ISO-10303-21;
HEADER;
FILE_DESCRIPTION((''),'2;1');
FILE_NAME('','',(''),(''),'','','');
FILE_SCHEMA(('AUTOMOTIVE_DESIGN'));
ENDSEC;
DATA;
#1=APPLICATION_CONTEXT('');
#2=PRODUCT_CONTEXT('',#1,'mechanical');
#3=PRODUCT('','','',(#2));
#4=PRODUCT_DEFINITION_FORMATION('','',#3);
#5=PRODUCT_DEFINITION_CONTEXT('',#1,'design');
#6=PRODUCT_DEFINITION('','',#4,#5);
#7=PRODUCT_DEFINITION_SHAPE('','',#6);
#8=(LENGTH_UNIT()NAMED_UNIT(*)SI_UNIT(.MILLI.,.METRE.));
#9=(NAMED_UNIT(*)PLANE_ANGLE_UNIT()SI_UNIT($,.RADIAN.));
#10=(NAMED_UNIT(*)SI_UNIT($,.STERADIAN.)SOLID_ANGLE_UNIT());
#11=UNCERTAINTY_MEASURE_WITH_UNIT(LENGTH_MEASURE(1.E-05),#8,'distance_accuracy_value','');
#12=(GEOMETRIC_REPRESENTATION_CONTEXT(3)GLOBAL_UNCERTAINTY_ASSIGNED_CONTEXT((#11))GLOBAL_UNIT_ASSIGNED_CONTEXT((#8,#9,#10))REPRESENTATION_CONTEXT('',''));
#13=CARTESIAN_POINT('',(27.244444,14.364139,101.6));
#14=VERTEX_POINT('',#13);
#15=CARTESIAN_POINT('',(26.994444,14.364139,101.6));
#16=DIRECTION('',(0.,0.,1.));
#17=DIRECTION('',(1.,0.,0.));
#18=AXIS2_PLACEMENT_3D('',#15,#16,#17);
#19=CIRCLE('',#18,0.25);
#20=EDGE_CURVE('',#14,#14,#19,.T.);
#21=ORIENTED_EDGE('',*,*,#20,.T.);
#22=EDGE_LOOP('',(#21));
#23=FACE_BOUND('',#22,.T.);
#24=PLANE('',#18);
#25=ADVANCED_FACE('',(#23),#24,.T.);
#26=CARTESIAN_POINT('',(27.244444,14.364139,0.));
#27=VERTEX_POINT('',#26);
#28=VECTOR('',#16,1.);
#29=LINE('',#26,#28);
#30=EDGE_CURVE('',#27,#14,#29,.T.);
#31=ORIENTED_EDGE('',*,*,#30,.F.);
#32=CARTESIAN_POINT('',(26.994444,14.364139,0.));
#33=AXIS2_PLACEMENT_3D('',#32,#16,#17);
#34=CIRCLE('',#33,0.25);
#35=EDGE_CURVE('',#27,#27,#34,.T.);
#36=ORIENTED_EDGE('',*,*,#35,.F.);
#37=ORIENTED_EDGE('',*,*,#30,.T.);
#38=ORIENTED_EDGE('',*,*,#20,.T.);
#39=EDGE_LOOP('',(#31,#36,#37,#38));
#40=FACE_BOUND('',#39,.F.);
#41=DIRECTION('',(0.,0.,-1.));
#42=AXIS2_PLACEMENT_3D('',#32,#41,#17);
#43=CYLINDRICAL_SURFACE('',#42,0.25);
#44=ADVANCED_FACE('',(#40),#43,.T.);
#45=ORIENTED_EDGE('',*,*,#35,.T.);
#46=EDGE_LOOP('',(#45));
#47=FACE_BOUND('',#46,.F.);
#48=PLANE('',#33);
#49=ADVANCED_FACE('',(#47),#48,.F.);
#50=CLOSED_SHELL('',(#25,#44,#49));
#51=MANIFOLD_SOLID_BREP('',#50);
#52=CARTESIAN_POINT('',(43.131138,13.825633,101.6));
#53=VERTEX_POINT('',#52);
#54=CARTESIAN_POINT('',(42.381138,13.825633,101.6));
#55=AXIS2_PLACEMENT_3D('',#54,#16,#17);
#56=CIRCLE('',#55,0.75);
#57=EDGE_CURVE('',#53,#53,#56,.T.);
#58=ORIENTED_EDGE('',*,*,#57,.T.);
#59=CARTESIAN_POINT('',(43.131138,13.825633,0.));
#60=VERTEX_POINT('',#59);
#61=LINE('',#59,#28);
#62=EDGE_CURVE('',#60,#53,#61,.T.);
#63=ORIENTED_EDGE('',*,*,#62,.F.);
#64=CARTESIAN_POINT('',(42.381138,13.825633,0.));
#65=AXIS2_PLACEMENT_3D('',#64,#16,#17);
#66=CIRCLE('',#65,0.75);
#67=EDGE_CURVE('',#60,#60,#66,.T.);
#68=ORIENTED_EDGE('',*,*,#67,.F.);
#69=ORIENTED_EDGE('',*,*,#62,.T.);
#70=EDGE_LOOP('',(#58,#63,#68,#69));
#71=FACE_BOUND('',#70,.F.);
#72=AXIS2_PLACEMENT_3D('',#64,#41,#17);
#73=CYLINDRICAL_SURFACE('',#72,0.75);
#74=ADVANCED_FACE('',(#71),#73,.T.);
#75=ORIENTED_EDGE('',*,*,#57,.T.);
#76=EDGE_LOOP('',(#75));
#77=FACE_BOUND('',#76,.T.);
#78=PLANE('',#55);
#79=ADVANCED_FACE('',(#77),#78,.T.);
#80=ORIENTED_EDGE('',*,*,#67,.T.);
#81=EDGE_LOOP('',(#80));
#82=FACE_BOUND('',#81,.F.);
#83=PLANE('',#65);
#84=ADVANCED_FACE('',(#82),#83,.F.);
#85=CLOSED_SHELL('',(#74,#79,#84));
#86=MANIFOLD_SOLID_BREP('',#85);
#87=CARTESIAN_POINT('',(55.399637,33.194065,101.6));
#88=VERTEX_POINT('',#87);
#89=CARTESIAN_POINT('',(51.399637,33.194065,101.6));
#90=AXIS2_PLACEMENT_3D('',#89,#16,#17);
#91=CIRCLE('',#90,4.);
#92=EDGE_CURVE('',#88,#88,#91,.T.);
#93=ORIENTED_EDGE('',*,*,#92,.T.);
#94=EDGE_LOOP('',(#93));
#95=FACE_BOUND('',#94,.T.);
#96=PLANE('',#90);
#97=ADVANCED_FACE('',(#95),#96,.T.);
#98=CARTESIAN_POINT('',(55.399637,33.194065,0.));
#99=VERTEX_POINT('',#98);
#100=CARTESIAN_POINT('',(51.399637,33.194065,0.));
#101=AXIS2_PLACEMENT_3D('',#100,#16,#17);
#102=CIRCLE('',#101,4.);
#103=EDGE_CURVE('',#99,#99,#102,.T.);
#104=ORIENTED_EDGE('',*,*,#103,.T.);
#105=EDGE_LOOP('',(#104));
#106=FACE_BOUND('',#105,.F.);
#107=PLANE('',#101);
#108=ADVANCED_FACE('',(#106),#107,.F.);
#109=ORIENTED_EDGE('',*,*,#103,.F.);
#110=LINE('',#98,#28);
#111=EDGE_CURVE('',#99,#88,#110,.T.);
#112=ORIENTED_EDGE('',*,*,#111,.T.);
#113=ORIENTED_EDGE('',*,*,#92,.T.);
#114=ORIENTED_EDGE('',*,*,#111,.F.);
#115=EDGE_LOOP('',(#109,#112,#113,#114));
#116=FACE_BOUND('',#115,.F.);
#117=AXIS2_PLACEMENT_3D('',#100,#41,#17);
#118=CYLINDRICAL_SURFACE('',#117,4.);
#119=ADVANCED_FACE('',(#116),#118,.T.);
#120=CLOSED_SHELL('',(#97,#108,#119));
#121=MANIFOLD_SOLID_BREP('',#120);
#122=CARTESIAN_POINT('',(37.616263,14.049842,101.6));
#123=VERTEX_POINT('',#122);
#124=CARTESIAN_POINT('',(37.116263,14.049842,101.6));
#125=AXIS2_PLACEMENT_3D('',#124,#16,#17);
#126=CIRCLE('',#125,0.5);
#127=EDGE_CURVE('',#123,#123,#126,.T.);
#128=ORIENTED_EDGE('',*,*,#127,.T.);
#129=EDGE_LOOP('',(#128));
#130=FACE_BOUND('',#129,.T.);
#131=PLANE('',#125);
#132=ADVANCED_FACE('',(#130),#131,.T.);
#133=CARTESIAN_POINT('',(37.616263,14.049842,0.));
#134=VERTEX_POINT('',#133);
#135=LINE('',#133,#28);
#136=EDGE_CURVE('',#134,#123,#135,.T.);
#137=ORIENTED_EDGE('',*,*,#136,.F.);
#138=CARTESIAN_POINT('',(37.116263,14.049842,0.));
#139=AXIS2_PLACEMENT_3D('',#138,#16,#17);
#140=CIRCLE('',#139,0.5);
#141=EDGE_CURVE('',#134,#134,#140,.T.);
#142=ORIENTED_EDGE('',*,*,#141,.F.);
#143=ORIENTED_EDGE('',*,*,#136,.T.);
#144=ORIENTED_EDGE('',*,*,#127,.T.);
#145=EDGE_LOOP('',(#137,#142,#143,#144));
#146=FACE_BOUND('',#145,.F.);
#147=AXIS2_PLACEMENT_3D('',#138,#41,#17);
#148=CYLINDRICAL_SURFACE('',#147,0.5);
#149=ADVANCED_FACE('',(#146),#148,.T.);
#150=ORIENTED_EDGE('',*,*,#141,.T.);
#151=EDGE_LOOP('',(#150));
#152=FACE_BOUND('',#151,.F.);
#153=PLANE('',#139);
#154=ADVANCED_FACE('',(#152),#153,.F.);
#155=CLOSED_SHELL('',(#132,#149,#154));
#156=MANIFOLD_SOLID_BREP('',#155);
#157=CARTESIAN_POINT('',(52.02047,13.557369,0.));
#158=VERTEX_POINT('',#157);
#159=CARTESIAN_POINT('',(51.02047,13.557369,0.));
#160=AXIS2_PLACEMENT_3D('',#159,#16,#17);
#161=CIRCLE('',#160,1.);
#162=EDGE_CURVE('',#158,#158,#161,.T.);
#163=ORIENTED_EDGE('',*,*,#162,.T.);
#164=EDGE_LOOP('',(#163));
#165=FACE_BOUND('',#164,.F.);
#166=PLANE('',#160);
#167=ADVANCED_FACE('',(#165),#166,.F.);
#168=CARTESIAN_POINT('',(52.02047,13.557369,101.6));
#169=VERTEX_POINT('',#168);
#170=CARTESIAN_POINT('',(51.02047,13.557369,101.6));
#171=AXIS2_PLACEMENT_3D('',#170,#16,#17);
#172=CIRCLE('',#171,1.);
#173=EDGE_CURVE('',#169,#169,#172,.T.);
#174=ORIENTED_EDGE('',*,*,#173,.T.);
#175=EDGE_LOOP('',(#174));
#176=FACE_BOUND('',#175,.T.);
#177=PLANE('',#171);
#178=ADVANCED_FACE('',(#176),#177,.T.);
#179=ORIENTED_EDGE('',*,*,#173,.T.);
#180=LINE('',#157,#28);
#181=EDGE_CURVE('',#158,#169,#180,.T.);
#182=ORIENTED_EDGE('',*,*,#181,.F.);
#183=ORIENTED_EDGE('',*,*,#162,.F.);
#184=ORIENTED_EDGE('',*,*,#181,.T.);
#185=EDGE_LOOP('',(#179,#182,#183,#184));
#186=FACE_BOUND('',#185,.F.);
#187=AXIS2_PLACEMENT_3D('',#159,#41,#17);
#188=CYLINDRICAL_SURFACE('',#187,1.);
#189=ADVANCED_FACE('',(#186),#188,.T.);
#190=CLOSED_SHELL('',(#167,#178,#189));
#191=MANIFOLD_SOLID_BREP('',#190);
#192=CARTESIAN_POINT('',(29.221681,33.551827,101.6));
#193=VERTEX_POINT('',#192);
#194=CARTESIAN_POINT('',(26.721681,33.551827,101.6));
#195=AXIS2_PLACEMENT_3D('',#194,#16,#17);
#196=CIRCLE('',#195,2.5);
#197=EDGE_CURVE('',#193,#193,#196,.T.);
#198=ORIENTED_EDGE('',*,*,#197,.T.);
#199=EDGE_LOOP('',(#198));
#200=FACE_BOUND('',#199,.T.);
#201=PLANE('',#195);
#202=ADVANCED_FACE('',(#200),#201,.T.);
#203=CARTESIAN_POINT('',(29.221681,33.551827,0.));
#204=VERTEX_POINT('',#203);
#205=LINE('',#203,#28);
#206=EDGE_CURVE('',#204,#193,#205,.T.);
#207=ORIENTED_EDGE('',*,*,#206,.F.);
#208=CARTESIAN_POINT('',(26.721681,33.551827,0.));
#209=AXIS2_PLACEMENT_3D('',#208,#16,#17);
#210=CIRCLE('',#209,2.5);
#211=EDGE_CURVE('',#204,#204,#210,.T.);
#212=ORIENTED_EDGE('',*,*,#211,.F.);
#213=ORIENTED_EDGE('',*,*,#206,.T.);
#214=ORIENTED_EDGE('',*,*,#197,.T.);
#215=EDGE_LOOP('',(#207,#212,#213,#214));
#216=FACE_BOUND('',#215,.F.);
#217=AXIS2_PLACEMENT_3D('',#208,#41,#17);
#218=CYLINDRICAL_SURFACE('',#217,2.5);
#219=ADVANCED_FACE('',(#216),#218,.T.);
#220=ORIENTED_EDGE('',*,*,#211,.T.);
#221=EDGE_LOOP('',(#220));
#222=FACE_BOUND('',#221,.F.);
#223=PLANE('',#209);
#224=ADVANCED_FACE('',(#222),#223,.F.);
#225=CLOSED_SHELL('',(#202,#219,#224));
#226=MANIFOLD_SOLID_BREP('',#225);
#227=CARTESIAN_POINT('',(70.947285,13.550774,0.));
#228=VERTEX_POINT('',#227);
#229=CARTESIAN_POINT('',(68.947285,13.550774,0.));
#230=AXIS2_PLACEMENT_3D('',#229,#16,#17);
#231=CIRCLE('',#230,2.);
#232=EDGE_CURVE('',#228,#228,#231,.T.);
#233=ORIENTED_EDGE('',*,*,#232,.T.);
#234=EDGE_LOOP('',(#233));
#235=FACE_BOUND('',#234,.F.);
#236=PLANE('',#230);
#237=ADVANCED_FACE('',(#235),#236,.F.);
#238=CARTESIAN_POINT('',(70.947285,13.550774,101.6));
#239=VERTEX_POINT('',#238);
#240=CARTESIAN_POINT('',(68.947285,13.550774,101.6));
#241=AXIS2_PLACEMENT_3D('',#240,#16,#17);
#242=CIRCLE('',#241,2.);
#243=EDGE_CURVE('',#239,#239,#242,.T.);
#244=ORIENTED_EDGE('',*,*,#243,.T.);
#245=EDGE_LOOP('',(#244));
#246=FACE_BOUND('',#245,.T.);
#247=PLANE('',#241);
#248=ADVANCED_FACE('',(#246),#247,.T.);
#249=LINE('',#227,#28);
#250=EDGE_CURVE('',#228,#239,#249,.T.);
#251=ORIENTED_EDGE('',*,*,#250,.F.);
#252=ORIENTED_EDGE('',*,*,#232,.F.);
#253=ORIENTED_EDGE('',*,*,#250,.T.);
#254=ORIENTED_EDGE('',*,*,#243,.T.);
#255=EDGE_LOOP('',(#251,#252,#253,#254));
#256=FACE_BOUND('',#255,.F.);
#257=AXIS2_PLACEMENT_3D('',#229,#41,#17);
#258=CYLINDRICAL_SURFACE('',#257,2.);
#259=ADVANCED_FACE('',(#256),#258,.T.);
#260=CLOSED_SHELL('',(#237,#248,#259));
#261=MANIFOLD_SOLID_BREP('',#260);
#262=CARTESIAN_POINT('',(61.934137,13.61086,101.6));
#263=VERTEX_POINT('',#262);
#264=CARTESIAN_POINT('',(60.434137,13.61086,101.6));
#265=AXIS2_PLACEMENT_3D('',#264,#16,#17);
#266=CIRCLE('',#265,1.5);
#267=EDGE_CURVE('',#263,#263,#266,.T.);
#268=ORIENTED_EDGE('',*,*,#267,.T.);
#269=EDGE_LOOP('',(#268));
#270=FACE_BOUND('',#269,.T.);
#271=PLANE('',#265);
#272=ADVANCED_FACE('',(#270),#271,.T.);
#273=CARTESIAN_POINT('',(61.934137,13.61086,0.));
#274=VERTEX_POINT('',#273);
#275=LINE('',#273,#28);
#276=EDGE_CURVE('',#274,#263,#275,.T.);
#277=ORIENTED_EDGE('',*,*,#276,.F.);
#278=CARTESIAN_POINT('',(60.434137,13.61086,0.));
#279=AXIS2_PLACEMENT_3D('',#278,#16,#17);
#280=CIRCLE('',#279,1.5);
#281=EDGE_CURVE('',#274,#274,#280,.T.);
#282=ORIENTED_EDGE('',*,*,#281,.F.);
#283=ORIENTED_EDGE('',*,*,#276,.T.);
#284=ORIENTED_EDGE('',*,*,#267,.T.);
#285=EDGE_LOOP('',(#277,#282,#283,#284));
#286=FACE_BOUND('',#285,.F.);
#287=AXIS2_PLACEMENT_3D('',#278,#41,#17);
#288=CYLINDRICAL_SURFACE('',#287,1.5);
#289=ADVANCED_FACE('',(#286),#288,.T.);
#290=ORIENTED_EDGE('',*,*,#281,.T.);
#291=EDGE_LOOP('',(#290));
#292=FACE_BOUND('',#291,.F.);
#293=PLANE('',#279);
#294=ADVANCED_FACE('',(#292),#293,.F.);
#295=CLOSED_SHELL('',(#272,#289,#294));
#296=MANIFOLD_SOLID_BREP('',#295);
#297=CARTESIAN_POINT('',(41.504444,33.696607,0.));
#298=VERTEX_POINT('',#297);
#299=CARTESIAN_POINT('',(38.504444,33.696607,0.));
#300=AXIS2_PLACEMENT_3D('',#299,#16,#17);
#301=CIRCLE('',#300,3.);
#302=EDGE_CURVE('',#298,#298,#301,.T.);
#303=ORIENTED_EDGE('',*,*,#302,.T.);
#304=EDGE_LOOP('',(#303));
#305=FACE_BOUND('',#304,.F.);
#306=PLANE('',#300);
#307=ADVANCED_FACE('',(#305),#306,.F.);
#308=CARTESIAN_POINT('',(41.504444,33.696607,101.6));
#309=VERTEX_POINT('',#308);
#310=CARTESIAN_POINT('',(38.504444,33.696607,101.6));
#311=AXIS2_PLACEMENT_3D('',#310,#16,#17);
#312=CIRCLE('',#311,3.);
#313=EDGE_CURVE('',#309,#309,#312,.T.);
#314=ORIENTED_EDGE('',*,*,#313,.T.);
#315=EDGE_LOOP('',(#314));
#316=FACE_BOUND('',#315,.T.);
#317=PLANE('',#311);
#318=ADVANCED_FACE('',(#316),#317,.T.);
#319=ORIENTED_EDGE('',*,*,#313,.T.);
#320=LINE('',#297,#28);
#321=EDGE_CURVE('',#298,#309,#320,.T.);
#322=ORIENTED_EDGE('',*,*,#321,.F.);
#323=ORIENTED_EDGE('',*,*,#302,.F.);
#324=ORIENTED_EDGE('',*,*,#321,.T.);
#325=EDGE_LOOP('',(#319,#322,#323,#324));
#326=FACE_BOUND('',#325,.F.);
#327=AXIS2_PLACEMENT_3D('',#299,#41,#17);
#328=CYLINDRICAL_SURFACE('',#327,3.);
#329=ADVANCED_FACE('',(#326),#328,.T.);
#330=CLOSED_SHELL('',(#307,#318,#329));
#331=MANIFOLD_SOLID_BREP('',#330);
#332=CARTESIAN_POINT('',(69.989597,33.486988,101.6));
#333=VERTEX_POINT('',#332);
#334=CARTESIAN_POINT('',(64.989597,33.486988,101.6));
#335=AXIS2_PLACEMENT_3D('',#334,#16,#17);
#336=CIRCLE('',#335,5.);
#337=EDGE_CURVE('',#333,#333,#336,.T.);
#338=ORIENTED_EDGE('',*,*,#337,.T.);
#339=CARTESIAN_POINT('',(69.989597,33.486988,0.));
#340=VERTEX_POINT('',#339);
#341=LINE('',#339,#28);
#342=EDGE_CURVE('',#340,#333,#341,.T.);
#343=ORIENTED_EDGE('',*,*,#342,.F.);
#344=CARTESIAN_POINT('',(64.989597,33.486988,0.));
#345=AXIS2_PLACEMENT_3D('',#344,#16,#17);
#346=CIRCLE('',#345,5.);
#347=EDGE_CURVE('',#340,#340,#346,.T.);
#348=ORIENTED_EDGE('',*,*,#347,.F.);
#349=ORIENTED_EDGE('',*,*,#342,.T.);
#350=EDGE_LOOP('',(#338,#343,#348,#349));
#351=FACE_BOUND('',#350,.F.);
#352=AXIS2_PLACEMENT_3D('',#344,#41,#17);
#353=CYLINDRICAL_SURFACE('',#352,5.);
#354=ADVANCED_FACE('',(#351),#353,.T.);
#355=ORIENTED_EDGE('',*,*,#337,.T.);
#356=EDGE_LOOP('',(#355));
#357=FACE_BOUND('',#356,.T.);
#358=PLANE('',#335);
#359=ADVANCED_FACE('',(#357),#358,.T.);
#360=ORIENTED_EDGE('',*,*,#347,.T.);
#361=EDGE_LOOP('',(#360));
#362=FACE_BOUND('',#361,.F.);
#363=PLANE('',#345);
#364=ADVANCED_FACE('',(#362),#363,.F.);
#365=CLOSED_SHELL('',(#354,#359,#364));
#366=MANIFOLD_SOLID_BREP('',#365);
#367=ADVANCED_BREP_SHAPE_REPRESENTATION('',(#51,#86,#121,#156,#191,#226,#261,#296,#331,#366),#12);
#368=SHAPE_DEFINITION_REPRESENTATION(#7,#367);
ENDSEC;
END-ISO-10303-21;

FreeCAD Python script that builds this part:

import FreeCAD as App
import Part
import Sketcher
from FreeCAD import Vector

doc = App.newDocument("Part")
body = doc.addObject("PartDesign::Body", "Body")
body.AllowCompound = True

sketch1 = doc.addObject("Sketcher::SketchObject", "Sketch")
body.addObject(sketch1)
sketch1.AttachmentSupport = (doc.XY_Plane, [""])
sketch1.MapMode = "FlatFace"
sketch1.addGeometry([
    Part.Circle(Vector(26.994444, 14.364139, 0), Vector(0, 0, 1), 0.25),
    Part.Circle(Vector(37.116263, 14.049842, 0), Vector(0, 0, 1), 0.5),
    Part.Circle(Vector(42.381138, 13.825633, 0), Vector(0, 0, 1), 0.75),
    Part.Circle(Vector(51.02047, 13.557369, 0), Vector(0, 0, 1), 1),
    Part.Circle(Vector(60.434137, 13.61086, 0), Vector(0, 0, 1), 1.5),
    Part.Circle(Vector(68.947285, 13.550774, 0), Vector(0, 0, 1), 2),
    Part.Circle(Vector(26.721681, 33.551827, 0), Vector(0, 0, 1), 2.5),
    Part.Circle(Vector(38.504444, 33.696607, 0), Vector(0, 0, 1), 3),
    Part.Circle(Vector(64.989597, 33.486988, 0), Vector(0, 0, 1), 5),
    Part.Circle(Vector(51.399637, 33.194065, 0), Vector(0, 0, 1), 4),
], False)
sketch1.addConstraint([
    Sketcher.Constraint("Diameter", 1, 1.0),
    Sketcher.Constraint("Diameter", 3, 2.0),
    Sketcher.Constraint("Diameter", 4, 3.0),
    Sketcher.Constraint("Diameter", 5, 4.0),
    Sketcher.Constraint("Diameter", 6, 5.0),
    Sketcher.Constraint("Diameter", 7, 6.0),
    Sketcher.Constraint("Diameter", 8, 10.0),
    Sketcher.Constraint("Diameter", 9, 8.0),
    Sketcher.Constraint("Diameter", 0, 0.5),
    Sketcher.Constraint("Diameter", 2, 1.5),
    Sketcher.Constraint("DistanceX", 0, 3, 7, 3, 11.51),
    Sketcher.Constraint("DistanceX", 2, 3, 4, 3, 18.052999),
    Sketcher.Constraint("DistanceX", 2, 3, 9, 3, 9.018499),
    Sketcher.Constraint("DistanceY", -1, 1, 0, 3, 14.364139),
    Sketcher.Constraint("DistanceX", -1, 1, 3, 3, 51.02047),
    Sketcher.Constraint("DistanceY", -1, 1, 3, 3, 13.557369),
    Sketcher.Constraint("DistanceY", -1, 1, 4, 3, 13.61086),
    Sketcher.Constraint("DistanceX", -1, 1, 6, 3, 26.721681),
    Sketcher.Constraint("DistanceX", 0, 3, 1, 3, 10.121819),
    Sketcher.Constraint("DistanceY", 2, 3, 1, 3, 0.224209),
    Sketcher.Constraint("DistanceY", 4, 3, 1, 3, 0.438982),
    Sketcher.Constraint("DistanceY", 5, 3, 2, 3, 0.274859),
    Sketcher.Constraint("DistanceX", 1, 3, 5, 3, 31.831022),
    Sketcher.Constraint("DistanceY", 0, 3, 6, 3, 19.187688),
    Sketcher.Constraint("DistanceX", 6, 3, 1, 3, 10.394582),
    Sketcher.Constraint("DistanceY", 6, 3, 7, 3, 0.14478),
    Sketcher.Constraint("DistanceX", 4, 3, 8, 3, 4.55546),
    Sketcher.Constraint("DistanceY", 3, 3, 8, 3, 19.929619),
    Sketcher.Constraint("DistanceY", 9, 3, 7, 3, 0.502542),
    Sketcher.Constraint("DistanceX", -1, 1, 2, 3, 42.381138),
])
pad1 = doc.addObject("PartDesign::Pad", "Pad")
body.addObject(pad1)
pad1.Profile = sketch1
pad1.Length = 101.6

doc.recompute()
